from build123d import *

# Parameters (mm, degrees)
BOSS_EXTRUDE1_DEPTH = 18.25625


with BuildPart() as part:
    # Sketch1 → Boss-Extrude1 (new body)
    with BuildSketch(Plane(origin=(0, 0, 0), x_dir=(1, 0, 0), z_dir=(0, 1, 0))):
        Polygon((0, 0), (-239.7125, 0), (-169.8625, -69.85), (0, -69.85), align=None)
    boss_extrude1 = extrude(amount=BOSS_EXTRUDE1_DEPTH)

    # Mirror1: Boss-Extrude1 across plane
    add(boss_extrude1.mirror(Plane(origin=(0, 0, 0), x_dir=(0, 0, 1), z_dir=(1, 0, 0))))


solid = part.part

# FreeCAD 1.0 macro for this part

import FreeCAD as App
import Part
import Sketcher
from FreeCAD import Vector
Q = App.Units.Quantity

doc = App.newDocument("Part")
body = doc.addObject("PartDesign::Body", "Body")

# Sketch on XZ plane
sketch1 = doc.addObject("Sketcher::SketchObject", "Sketch")
body.addObject(sketch1)
sketch1.AttachmentSupport = (doc.XZ_Plane, [""])
sketch1.MapMode = "FlatFace"
sketch1.addGeometry(Part.LineSegment(Vector(0, 0, 0), Vector(-239.7125, 0, 0)), False)
sketch1.addGeometry(Part.LineSegment(Vector(-239.7125, 0, 0), Vector(-169.8625, 69.85, 0)), False)
sketch1.addGeometry(Part.LineSegment(Vector(-169.8625, 69.85, 0), Vector(0, 69.85, 0)), False)
sketch1.addGeometry(Part.LineSegment(Vector(0, 69.85, 0), Vector(0, 0, 0)), False)
sketch1.addConstraint(Sketcher.Constraint("Coincident", 0, 2, 1, 1))
sketch1.addConstraint(Sketcher.Constraint("Coincident", 1, 2, 2, 1))
sketch1.addConstraint(Sketcher.Constraint("Coincident", 2, 2, 3, 1))
sketch1.addConstraint(Sketcher.Constraint("Coincident", 3, 2, 0, 1))
sketch1.addConstraint(Sketcher.Constraint("Horizontal", 0))
sketch1.addConstraint(Sketcher.Constraint("Horizontal", 2))
sketch1.addConstraint(Sketcher.Constraint("Vertical", 3))
sketch1.addConstraint(Sketcher.Constraint("Coincident", 3, 2, -1, 1))
sketch1.addConstraint(Sketcher.Constraint("Angle", 1, Q("45 deg")))
sketch1.addConstraint(Sketcher.Constraint("DistanceY", 3, 2, 3, 1, Q("2.75 in")))
sketch1.addConstraint(Sketcher.Constraint("DistanceX", 0, 2, 0, 1, Q("9.4375 in")))
pad1 = doc.addObject("PartDesign::Pad", "Pad")
body.addObject(pad1)
pad1.Profile = sketch1
pad1.Length = Q("0.71875 in")
pad1.Reversed = True
doc.recompute()

mirrored = doc.addObject("PartDesign::Mirrored", "Mirrored")
body.addObject(mirrored)
mirrored.Originals = [pad1]
mirrored.MirrorPlane = (doc.YZ_Plane, [""])
body.Tip = mirrored

doc.recompute()
